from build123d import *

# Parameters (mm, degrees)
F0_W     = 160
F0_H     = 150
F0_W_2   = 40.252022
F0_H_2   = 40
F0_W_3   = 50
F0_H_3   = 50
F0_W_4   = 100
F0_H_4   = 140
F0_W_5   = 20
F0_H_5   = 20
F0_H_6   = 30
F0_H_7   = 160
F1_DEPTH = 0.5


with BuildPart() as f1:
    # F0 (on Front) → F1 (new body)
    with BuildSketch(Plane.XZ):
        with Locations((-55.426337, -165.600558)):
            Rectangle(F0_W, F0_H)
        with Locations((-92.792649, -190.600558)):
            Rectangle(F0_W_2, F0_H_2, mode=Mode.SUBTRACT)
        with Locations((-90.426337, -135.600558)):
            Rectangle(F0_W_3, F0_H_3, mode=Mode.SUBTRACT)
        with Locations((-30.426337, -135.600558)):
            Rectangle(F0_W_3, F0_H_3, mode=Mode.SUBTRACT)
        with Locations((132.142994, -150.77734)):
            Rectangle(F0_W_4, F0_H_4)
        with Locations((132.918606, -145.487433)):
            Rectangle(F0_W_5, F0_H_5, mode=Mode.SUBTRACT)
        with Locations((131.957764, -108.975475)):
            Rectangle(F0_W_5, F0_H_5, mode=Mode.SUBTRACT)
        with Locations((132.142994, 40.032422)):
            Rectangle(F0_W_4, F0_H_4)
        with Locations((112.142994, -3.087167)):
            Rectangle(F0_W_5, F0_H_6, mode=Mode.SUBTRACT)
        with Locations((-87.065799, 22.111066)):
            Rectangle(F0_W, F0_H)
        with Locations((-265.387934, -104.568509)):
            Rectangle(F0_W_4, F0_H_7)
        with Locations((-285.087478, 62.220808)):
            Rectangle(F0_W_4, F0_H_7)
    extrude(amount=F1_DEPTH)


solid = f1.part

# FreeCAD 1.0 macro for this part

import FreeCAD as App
import Part
import Sketcher

V = App.Vector

doc = App.newDocument("Part")
body = doc.addObject("PartDesign::Body", "Body")
body.AllowCompound = True

# Sketch on XZ plane
sketch1 = doc.addObject("Sketcher::SketchObject", "Sketch")
body.addObject(sketch1)
sketch1.AttachmentSupport = (doc.XZ_Plane, [""])
sketch1.MapMode = "FlatFace"
sketch1.addGeometry(Part.LineSegment(V(-135, -91, 0), V(-135, -241, 0)), False)
sketch1.addGeometry(Part.LineSegment(V(-135, -241, 0), V(25, -241, 0)), False)
sketch1.addGeometry(Part.LineSegment(V(25, -241, 0), V(25, -91, 0)), False)
sketch1.addGeometry(Part.LineSegment(V(25, -91, 0), V(-135, -91, 0)), False)
sketch1.addGeometry(Part.LineSegment(V(-73, -211, 0), V(-113, -211, 0)), False)
sketch1.addGeometry(Part.LineSegment(V(-113, -211, 0), V(-113, -171, 0)), False)
sketch1.addGeometry(Part.LineSegment(V(-113, -171, 0), V(-73, -171, 0)), False)
sketch1.addGeometry(Part.LineSegment(V(-73, -171, 0), V(-73, -211, 0)), False)
sketch1.addGeometry(Part.LineSegment(V(-65, -161, 0), V(-115, -161, 0)), False)
sketch1.addGeometry(Part.LineSegment(V(-115, -161, 0), V(-115, -111, 0)), False)
sketch1.addGeometry(Part.LineSegment(V(-115, -111, 0), V(-65, -111, 0)), False)
sketch1.addGeometry(Part.LineSegment(V(-65, -111, 0), V(-65, -161, 0)), False)
sketch1.addGeometry(Part.LineSegment(V(-5, -161, 0), V(-55, -161, 0)), False)
sketch1.addGeometry(Part.LineSegment(V(-55, -161, 0), V(-55, -111, 0)), False)
sketch1.addGeometry(Part.LineSegment(V(-55, -111, 0), V(-5, -111, 0)), False)
sketch1.addGeometry(Part.LineSegment(V(-5, -111, 0), V(-5, -161, 0)), False)
sketch1.addGeometry(Part.LineSegment(V(82, -81, 0), V(82, -221, 0)), False)
sketch1.addGeometry(Part.LineSegment(V(82, -221, 0), V(182, -221, 0)), False)
sketch1.addGeometry(Part.LineSegment(V(182, -221, 0), V(182, -81, 0)), False)
sketch1.addGeometry(Part.LineSegment(V(182, -81, 0), V(82, -81, 0)), False)
sketch1.addGeometry(Part.LineSegment(V(143, -155, 0), V(123, -155, 0)), False)
sketch1.addGeometry(Part.LineSegment(V(123, -155, 0), V(123, -135, 0)), False)
sketch1.addGeometry(Part.LineSegment(V(123, -135, 0), V(143, -135, 0)), False)
sketch1.addGeometry(Part.LineSegment(V(143, -135, 0), V(143, -155, 0)), False)
sketch1.addGeometry(Part.LineSegment(V(142, -119, 0), V(122, -119, 0)), False)
sketch1.addGeometry(Part.LineSegment(V(122, -119, 0), V(122, -99, 0)), False)
sketch1.addGeometry(Part.LineSegment(V(122, -99, 0), V(142, -99, 0)), False)
sketch1.addGeometry(Part.LineSegment(V(142, -99, 0), V(142, -119, 0)), False)
sketch1.addGeometry(Part.LineSegment(V(82, 110, 0), V(82, -30, 0)), False)
sketch1.addGeometry(Part.LineSegment(V(82, -30, 0), V(182, -30, 0)), False)
sketch1.addGeometry(Part.LineSegment(V(182, -30, 0), V(182, 110, 0)), False)
sketch1.addGeometry(Part.LineSegment(V(182, 110, 0), V(82, 110, 0)), False)
sketch1.addGeometry(Part.LineSegment(V(122, -18, 0), V(102, -18, 0)), False)
sketch1.addGeometry(Part.LineSegment(V(102, -18, 0), V(102, 12, 0)), False)
sketch1.addGeometry(Part.LineSegment(V(102, 12, 0), V(122, 12, 0)), False)
sketch1.addGeometry(Part.LineSegment(V(122, 12, 0), V(122, -18, 0)), False)
sketch1.addGeometry(Part.LineSegment(V(-167, 97, 0), V(-167, -53, 0)), False)
sketch1.addGeometry(Part.LineSegment(V(-167, -53, 0), V(-7, -53, 0)), False)
sketch1.addGeometry(Part.LineSegment(V(-7, -53, 0), V(-7, 97, 0)), False)
sketch1.addGeometry(Part.LineSegment(V(-7, 97, 0), V(-167, 97, 0)), False)
sketch1.addGeometry(Part.LineSegment(V(-315, -25, 0), V(-315, -185, 0)), False)
sketch1.addGeometry(Part.LineSegment(V(-315, -185, 0), V(-215, -185, 0)), False)
sketch1.addGeometry(Part.LineSegment(V(-215, -185, 0), V(-215, -25, 0)), False)
sketch1.addGeometry(Part.LineSegment(V(-215, -25, 0), V(-315, -25, 0)), False)
sketch1.addGeometry(Part.LineSegment(V(-335, 142, 0), V(-335, -18, 0)), False)
sketch1.addGeometry(Part.LineSegment(V(-335, -18, 0), V(-235, -18, 0)), False)
sketch1.addGeometry(Part.LineSegment(V(-235, -18, 0), V(-235, 142, 0)), False)
sketch1.addGeometry(Part.LineSegment(V(-235, 142, 0), V(-335, 142, 0)), False)
sketch1.addConstraint(Sketcher.Constraint("Coincident", 0, 2, 1, 1))
sketch1.addConstraint(Sketcher.Constraint("Coincident", 1, 2, 2, 1))
sketch1.addConstraint(Sketcher.Constraint("Coincident", 2, 2, 3, 1))
sketch1.addConstraint(Sketcher.Constraint("Coincident", 3, 2, 0, 1))
sketch1.addConstraint(Sketcher.Constraint("Coincident", 4, 2, 5, 1))
sketch1.addConstraint(Sketcher.Constraint("Coincident", 5, 2, 6, 1))
sketch1.addConstraint(Sketcher.Constraint("Coincident", 6, 2, 7, 1))
sketch1.addConstraint(Sketcher.Constraint("Coincident", 7, 2, 4, 1))
sketch1.addConstraint(Sketcher.Constraint("Coincident", 8, 2, 9, 1))
sketch1.addConstraint(Sketcher.Constraint("Coincident", 9, 2, 10, 1))
sketch1.addConstraint(Sketcher.Constraint("Coincident", 10, 2, 11, 1))
sketch1.addConstraint(Sketcher.Constraint("Coincident", 11, 2, 8, 1))
sketch1.addConstraint(Sketcher.Constraint("Coincident", 12, 2, 13, 1))
sketch1.addConstraint(Sketcher.Constraint("Coincident", 13, 2, 14, 1))
sketch1.addConstraint(Sketcher.Constraint("Coincident", 14, 2, 15, 1))
sketch1.addConstraint(Sketcher.Constraint("Coincident", 15, 2, 12, 1))
sketch1.addConstraint(Sketcher.Constraint("Coincident", 16, 2, 17, 1))
sketch1.addConstraint(Sketcher.Constraint("Coincident", 17, 2, 18, 1))
sketch1.addConstraint(Sketcher.Constraint("Coincident", 18, 2, 19, 1))
sketch1.addConstraint(Sketcher.Constraint("Coincident", 19, 2, 16, 1))
sketch1.addConstraint(Sketcher.Constraint("Coincident", 20, 2, 21, 1))
sketch1.addConstraint(Sketcher.Constraint("Coincident", 21, 2, 22, 1))
sketch1.addConstraint(Sketcher.Constraint("Coincident", 22, 2, 23, 1))
sketch1.addConstraint(Sketcher.Constraint("Coincident", 23, 2, 20, 1))
sketch1.addConstraint(Sketcher.Constraint("Coincident", 24, 2, 25, 1))
sketch1.addConstraint(Sketcher.Constraint("Coincident", 25, 2, 26, 1))
sketch1.addConstraint(Sketcher.Constraint("Coincident", 26, 2, 27, 1))
sketch1.addConstraint(Sketcher.Constraint("Coincident", 27, 2, 24, 1))
sketch1.addConstraint(Sketcher.Constraint("Coincident", 28, 2, 29, 1))
sketch1.addConstraint(Sketcher.Constraint("Coincident", 29, 2, 30, 1))
sketch1.addConstraint(Sketcher.Constraint("Coincident", 30, 2, 31, 1))
sketch1.addConstraint(Sketcher.Constraint("Coincident", 31, 2, 28, 1))
sketch1.addConstraint(Sketcher.Constraint("Coincident", 32, 2, 33, 1))
sketch1.addConstraint(Sketcher.Constraint("Coincident", 33, 2, 34, 1))
sketch1.addConstraint(Sketcher.Constraint("Coincident", 34, 2, 35, 1))
sketch1.addConstraint(Sketcher.Constraint("Coincident", 35, 2, 32, 1))
sketch1.addConstraint(Sketcher.Constraint("Coincident", 36, 2, 37, 1))
sketch1.addConstraint(Sketcher.Constraint("Coincident", 37, 2, 38, 1))
sketch1.addConstraint(Sketcher.Constraint("Coincident", 38, 2, 39, 1))
sketch1.addConstraint(Sketcher.Constraint("Coincident", 39, 2, 36, 1))
sketch1.addConstraint(Sketcher.Constraint("Coincident", 40, 2, 41, 1))
sketch1.addConstraint(Sketcher.Constraint("Coincident", 41, 2, 42, 1))
sketch1.addConstraint(Sketcher.Constraint("Coincident", 42, 2, 43, 1))
sketch1.addConstraint(Sketcher.Constraint("Coincident", 43, 2, 40, 1))
sketch1.addConstraint(Sketcher.Constraint("Coincident", 44, 2, 45, 1))
sketch1.addConstraint(Sketcher.Constraint("Coincident", 45, 2, 46, 1))
sketch1.addConstraint(Sketcher.Constraint("Coincident", 46, 2, 47, 1))
sketch1.addConstraint(Sketcher.Constraint("Coincident", 47, 2, 44, 1))
sketch1.addConstraint(Sketcher.Constraint("Vertical", 0))
sketch1.addConstraint(Sketcher.Constraint("Horizontal", 1))
sketch1.addConstraint(Sketcher.Constraint("Vertical", 2))
sketch1.addConstraint(Sketcher.Constraint("Horizontal", 3))
sketch1.addConstraint(Sketcher.Constraint("Horizontal", 4))
sketch1.addConstraint(Sketcher.Constraint("Vertical", 5))
sketch1.addConstraint(Sketcher.Constraint("Horizontal", 6))
sketch1.addConstraint(Sketcher.Constraint("Vertical", 7))
sketch1.addConstraint(Sketcher.Constraint("Horizontal", 8))
sketch1.addConstraint(Sketcher.Constraint("Vertical", 9))
sketch1.addConstraint(Sketcher.Constraint("Horizontal", 10))
sketch1.addConstraint(Sketcher.Constraint("Vertical", 11))
sketch1.addConstraint(Sketcher.Constraint("Horizontal", 12))
sketch1.addConstraint(Sketcher.Constraint("Vertical", 13))
sketch1.addConstraint(Sketcher.Constraint("Horizontal", 14))
sketch1.addConstraint(Sketcher.Constraint("Vertical", 15))
sketch1.addConstraint(Sketcher.Constraint("Vertical", 16))
sketch1.addConstraint(Sketcher.Constraint("Horizontal", 17))
sketch1.addConstraint(Sketcher.Constraint("Vertical", 18))
sketch1.addConstraint(Sketcher.Constraint("Horizontal", 19))
sketch1.addConstraint(Sketcher.Constraint("Horizontal", 20))
sketch1.addConstraint(Sketcher.Constraint("Vertical", 21))
sketch1.addConstraint(Sketcher.Constraint("Horizontal", 22))
sketch1.addConstraint(Sketcher.Constraint("Vertical", 23))
sketch1.addConstraint(Sketcher.Constraint("Horizontal", 24))
sketch1.addConstraint(Sketcher.Constraint("Vertical", 25))
sketch1.addConstraint(Sketcher.Constraint("Horizontal", 26))
sketch1.addConstraint(Sketcher.Constraint("Vertical", 27))
sketch1.addConstraint(Sketcher.Constraint("Vertical", 28))
sketch1.addConstraint(Sketcher.Constraint("Horizontal", 29))
sketch1.addConstraint(Sketcher.Constraint("Vertical", 30))
sketch1.addConstraint(Sketcher.Constraint("Horizontal", 31))
sketch1.addConstraint(Sketcher.Constraint("Horizontal", 32))
sketch1.addConstraint(Sketcher.Constraint("Vertical", 33))
sketch1.addConstraint(Sketcher.Constraint("Horizontal", 34))
sketch1.addConstraint(Sketcher.Constraint("Vertical", 35))
sketch1.addConstraint(Sketcher.Constraint("Vertical", 36))
sketch1.addConstraint(Sketcher.Constraint("Horizontal", 37))
sketch1.addConstraint(Sketcher.Constraint("Vertical", 38))
sketch1.addConstraint(Sketcher.Constraint("Horizontal", 39))
sketch1.addConstraint(Sketcher.Constraint("Vertical", 40))
sketch1.addConstraint(Sketcher.Constraint("Horizontal", 41))
sketch1.addConstraint(Sketcher.Constraint("Vertical", 42))
sketch1.addConstraint(Sketcher.Constraint("Horizontal", 43))
sketch1.addConstraint(Sketcher.Constraint("Vertical", 44))
sketch1.addConstraint(Sketcher.Constraint("Horizontal", 45))
sketch1.addConstraint(Sketcher.Constraint("Vertical", 46))
sketch1.addConstraint(Sketcher.Constraint("Horizontal", 47))
sketch1.addConstraint(Sketcher.Constraint("Horizontal", 11, 2, 12, 2))
sketch1.addConstraint(Sketcher.Constraint("Horizontal", 10, 2, 13, 2))
sketch1.addConstraint(Sketcher.Constraint("Vertical", 19, 2, 28, 2))
sketch1.addConstraint(Sketcher.Constraint("Vertical", 18, 2, 29, 2))
sketch1.addConstraint(Sketcher.Constraint("Equal", 10, 12))
sketch1.addConstraint(Sketcher.Constraint("Equal", 22, 24))
sketch1.addConstraint(Sketcher.Constraint("Equal", 26, 32))
sketch1.addConstraint(Sketcher.Constraint("Equal", 3, 37))
sketch1.addConstraint(Sketcher.Constraint("Equal", 31, 41))
sketch1.addConstraint(Sketcher.Constraint("Equal", 43, 45))
sketch1.addConstraint(Sketcher.Constraint("Equal", 14, 9))
sketch1.addConstraint(Sketcher.Constraint("Equal", 34, 21))
sketch1.addConstraint(Sketcher.Constraint("Equal", 23, 25))
sketch1.addConstraint(Sketcher.Constraint("Equal", 18, 28))
sketch1.addConstraint(Sketcher.Constraint("Equal", 2, 36))
sketch1.addConstraint(Sketcher.Constraint("Equal", 39, 40))
sketch1.addConstraint(Sketcher.Constraint("Equal", 42, 44))
sketch1.addConstraint(Sketcher.Constraint("DistanceX", 1, 1, 1, 2, 160.0))
sketch1.addConstraint(Sketcher.Constraint("DistanceX", 8, 2, 8, 1, 50.0))
sketch1.addConstraint(Sketcher.Constraint("DistanceX", 17, 1, 17, 2, 100.0))
sketch1.addConstraint(Sketcher.Constraint("DistanceX", 20, 2, 20, 1, 20.0))
sketch1.addConstraint(Sketcher.Constraint("DistanceY", 0, 2, 0, 1, 150.0))
sketch1.addConstraint(Sketcher.Constraint("DistanceY", 5, 1, 5, 2, 40.0))
sketch1.addConstraint(Sketcher.Constraint("DistanceY", 16, 2, 16, 1, 140.0))
sketch1.addConstraint(Sketcher.Constraint("DistanceY", 33, 1, 33, 2, 30.0))
sketch1.addConstraint(Sketcher.Constraint("DistanceY", 0, 2, 4, 2, 30.0))
sketch1.addConstraint(Sketcher.Constraint("DistanceY", 5, 2, 8, 2, 10.0))
sketch1.addConstraint(Sketcher.Constraint("DistanceX", 3, 2, 8, 2, 20.0))
sketch1.addConstraint(Sketcher.Constraint("DistanceX", 11, 2, 12, 2, 10.0))
sketch1.addConstraint(Sketcher.Constraint("DistanceX", 28, 2, 32, 2, 20.0))
sketch1.addConstraint(Sketcher.Constraint("DistanceX", 4, 2, 4, 1, 40.252022))
sketch1.addConstraint(Sketcher.Constraint("DistanceX", 36, 2, -1, 1, 167.065799))
sketch1.addConstraint(Sketcher.Constraint("DistanceX", 0, 2, 6, 2, 62.759699))
sketch1.addConstraint(Sketcher.Constraint("DistanceY", 0, 2, -1, 1, 240.600558))
sketch1.addConstraint(Sketcher.Constraint("DistanceX", 4, 2, -1, 1, 112.91866))
sketch1.addConstraint(Sketcher.Constraint("DistanceY", 16, 2, -1, 1, 220.77734))
sketch1.addConstraint(Sketcher.Constraint("DistanceY", -1, 1, 30, 2, 110.032422))
sketch1.addConstraint(Sketcher.Constraint("DistanceY", 40, 2, -1, 1, 184.568509))
sketch1.addConstraint(Sketcher.Constraint("DistanceY", 44, 2, -1, 1, 17.779192))
sketch1.addConstraint(Sketcher.Constraint("DistanceX", 45, 2, -1, 1, 235.087478))
sketch1.addConstraint(Sketcher.Constraint("DistanceX", 1, 2, 16, 2, 57.569331))
sketch1.addConstraint(Sketcher.Constraint("DistanceX", 16, 2, 20, 2, 40.775612))
sketch1.addConstraint(Sketcher.Constraint("DistanceX", 24, 2, 21, 2, 0.960842))
sketch1.addConstraint(Sketcher.Constraint("DistanceY", 21, 2, 24, 2, 16.511958))
sketch1.addConstraint(Sketcher.Constraint("DistanceY", 28, 2, 32, 2, 11.880411))
sketch1.addConstraint(Sketcher.Constraint("DistanceY", 36, 2, 44, 2, 35.109742))
sketch1.addConstraint(Sketcher.Constraint("DistanceY", 20, 2, -1, 1, 155.487433))
sketch1.addConstraint(Sketcher.Constraint("DistanceX", 40, 2, -1, 1, 315.387934))
pad1 = doc.addObject("PartDesign::Pad", "Pad")
body.addObject(pad1)
pad1.Profile = sketch1
pad1.Length = 0.5

doc.recompute()
